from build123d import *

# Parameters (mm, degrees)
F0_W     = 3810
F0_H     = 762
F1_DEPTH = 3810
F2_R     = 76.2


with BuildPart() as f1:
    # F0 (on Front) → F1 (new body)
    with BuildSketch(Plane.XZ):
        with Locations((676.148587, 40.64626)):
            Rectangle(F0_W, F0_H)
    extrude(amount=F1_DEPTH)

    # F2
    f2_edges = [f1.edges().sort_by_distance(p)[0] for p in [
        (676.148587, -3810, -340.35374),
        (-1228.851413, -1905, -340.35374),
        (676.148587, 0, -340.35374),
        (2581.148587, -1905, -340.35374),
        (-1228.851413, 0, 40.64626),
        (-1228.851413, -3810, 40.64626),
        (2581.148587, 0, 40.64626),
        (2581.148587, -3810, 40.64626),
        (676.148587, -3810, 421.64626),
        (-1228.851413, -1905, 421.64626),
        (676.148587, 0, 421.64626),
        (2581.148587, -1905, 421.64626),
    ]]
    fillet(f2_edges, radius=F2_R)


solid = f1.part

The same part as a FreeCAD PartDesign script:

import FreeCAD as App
import Part
import Sketcher
Q = App.Units.Quantity

doc = App.newDocument("Part")
body = doc.addObject("PartDesign::Body", "Body")

sketch1 = body.newObject("Sketcher::SketchObject", "Sketch")
sketch1.AttachmentSupport = (doc.getObject("XZ_Plane"), [""])
sketch1.MapMode = "FlatFace"
sketch1.addGeometry([
    Part.LineSegment(App.Vector(-1229, 422, 0), App.Vector(-1229, -340, 0)),
    Part.LineSegment(App.Vector(-1229, -340, 0), App.Vector(2581, -340, 0)),
    Part.LineSegment(App.Vector(2581, -340, 0), App.Vector(2581, 422, 0)),
    Part.LineSegment(App.Vector(2581, 422, 0), App.Vector(-1229, 422, 0)),
], False)
sketch1.addConstraint([
    Sketcher.Constraint("Coincident", 0, 2, 1, 1),
    Sketcher.Constraint("Coincident", 1, 2, 2, 1),
    Sketcher.Constraint("Coincident", 2, 2, 3, 1),
    Sketcher.Constraint("Coincident", 3, 2, 0, 1),
    Sketcher.Constraint("Vertical", 0),
    Sketcher.Constraint("Horizontal", 1),
    Sketcher.Constraint("Vertical", 2),
    Sketcher.Constraint("Horizontal", 3),
    Sketcher.Constraint("DistanceX", 1, 1, 1, 2, Q("150 in")),
    Sketcher.Constraint("DistanceY", 0, 2, 0, 1, Q("30 in")),
    Sketcher.Constraint("DistanceY", 0, 2, -1, 1, 340.35374),
    Sketcher.Constraint("DistanceX", 0, 2, -1, 1, 1228.851413),
])
pad1 = body.newObject("PartDesign::Pad", "Pad")
pad1.Profile = sketch1
pad1.Length = Q("150 in")
doc.recompute()

fillet = body.newObject("PartDesign::Fillet", "Fillet")
fillet.Base = (pad1, ["Edge1"])
fillet.UseAllEdges = True
fillet.Radius = Q("3 in")

doc.recompute()
